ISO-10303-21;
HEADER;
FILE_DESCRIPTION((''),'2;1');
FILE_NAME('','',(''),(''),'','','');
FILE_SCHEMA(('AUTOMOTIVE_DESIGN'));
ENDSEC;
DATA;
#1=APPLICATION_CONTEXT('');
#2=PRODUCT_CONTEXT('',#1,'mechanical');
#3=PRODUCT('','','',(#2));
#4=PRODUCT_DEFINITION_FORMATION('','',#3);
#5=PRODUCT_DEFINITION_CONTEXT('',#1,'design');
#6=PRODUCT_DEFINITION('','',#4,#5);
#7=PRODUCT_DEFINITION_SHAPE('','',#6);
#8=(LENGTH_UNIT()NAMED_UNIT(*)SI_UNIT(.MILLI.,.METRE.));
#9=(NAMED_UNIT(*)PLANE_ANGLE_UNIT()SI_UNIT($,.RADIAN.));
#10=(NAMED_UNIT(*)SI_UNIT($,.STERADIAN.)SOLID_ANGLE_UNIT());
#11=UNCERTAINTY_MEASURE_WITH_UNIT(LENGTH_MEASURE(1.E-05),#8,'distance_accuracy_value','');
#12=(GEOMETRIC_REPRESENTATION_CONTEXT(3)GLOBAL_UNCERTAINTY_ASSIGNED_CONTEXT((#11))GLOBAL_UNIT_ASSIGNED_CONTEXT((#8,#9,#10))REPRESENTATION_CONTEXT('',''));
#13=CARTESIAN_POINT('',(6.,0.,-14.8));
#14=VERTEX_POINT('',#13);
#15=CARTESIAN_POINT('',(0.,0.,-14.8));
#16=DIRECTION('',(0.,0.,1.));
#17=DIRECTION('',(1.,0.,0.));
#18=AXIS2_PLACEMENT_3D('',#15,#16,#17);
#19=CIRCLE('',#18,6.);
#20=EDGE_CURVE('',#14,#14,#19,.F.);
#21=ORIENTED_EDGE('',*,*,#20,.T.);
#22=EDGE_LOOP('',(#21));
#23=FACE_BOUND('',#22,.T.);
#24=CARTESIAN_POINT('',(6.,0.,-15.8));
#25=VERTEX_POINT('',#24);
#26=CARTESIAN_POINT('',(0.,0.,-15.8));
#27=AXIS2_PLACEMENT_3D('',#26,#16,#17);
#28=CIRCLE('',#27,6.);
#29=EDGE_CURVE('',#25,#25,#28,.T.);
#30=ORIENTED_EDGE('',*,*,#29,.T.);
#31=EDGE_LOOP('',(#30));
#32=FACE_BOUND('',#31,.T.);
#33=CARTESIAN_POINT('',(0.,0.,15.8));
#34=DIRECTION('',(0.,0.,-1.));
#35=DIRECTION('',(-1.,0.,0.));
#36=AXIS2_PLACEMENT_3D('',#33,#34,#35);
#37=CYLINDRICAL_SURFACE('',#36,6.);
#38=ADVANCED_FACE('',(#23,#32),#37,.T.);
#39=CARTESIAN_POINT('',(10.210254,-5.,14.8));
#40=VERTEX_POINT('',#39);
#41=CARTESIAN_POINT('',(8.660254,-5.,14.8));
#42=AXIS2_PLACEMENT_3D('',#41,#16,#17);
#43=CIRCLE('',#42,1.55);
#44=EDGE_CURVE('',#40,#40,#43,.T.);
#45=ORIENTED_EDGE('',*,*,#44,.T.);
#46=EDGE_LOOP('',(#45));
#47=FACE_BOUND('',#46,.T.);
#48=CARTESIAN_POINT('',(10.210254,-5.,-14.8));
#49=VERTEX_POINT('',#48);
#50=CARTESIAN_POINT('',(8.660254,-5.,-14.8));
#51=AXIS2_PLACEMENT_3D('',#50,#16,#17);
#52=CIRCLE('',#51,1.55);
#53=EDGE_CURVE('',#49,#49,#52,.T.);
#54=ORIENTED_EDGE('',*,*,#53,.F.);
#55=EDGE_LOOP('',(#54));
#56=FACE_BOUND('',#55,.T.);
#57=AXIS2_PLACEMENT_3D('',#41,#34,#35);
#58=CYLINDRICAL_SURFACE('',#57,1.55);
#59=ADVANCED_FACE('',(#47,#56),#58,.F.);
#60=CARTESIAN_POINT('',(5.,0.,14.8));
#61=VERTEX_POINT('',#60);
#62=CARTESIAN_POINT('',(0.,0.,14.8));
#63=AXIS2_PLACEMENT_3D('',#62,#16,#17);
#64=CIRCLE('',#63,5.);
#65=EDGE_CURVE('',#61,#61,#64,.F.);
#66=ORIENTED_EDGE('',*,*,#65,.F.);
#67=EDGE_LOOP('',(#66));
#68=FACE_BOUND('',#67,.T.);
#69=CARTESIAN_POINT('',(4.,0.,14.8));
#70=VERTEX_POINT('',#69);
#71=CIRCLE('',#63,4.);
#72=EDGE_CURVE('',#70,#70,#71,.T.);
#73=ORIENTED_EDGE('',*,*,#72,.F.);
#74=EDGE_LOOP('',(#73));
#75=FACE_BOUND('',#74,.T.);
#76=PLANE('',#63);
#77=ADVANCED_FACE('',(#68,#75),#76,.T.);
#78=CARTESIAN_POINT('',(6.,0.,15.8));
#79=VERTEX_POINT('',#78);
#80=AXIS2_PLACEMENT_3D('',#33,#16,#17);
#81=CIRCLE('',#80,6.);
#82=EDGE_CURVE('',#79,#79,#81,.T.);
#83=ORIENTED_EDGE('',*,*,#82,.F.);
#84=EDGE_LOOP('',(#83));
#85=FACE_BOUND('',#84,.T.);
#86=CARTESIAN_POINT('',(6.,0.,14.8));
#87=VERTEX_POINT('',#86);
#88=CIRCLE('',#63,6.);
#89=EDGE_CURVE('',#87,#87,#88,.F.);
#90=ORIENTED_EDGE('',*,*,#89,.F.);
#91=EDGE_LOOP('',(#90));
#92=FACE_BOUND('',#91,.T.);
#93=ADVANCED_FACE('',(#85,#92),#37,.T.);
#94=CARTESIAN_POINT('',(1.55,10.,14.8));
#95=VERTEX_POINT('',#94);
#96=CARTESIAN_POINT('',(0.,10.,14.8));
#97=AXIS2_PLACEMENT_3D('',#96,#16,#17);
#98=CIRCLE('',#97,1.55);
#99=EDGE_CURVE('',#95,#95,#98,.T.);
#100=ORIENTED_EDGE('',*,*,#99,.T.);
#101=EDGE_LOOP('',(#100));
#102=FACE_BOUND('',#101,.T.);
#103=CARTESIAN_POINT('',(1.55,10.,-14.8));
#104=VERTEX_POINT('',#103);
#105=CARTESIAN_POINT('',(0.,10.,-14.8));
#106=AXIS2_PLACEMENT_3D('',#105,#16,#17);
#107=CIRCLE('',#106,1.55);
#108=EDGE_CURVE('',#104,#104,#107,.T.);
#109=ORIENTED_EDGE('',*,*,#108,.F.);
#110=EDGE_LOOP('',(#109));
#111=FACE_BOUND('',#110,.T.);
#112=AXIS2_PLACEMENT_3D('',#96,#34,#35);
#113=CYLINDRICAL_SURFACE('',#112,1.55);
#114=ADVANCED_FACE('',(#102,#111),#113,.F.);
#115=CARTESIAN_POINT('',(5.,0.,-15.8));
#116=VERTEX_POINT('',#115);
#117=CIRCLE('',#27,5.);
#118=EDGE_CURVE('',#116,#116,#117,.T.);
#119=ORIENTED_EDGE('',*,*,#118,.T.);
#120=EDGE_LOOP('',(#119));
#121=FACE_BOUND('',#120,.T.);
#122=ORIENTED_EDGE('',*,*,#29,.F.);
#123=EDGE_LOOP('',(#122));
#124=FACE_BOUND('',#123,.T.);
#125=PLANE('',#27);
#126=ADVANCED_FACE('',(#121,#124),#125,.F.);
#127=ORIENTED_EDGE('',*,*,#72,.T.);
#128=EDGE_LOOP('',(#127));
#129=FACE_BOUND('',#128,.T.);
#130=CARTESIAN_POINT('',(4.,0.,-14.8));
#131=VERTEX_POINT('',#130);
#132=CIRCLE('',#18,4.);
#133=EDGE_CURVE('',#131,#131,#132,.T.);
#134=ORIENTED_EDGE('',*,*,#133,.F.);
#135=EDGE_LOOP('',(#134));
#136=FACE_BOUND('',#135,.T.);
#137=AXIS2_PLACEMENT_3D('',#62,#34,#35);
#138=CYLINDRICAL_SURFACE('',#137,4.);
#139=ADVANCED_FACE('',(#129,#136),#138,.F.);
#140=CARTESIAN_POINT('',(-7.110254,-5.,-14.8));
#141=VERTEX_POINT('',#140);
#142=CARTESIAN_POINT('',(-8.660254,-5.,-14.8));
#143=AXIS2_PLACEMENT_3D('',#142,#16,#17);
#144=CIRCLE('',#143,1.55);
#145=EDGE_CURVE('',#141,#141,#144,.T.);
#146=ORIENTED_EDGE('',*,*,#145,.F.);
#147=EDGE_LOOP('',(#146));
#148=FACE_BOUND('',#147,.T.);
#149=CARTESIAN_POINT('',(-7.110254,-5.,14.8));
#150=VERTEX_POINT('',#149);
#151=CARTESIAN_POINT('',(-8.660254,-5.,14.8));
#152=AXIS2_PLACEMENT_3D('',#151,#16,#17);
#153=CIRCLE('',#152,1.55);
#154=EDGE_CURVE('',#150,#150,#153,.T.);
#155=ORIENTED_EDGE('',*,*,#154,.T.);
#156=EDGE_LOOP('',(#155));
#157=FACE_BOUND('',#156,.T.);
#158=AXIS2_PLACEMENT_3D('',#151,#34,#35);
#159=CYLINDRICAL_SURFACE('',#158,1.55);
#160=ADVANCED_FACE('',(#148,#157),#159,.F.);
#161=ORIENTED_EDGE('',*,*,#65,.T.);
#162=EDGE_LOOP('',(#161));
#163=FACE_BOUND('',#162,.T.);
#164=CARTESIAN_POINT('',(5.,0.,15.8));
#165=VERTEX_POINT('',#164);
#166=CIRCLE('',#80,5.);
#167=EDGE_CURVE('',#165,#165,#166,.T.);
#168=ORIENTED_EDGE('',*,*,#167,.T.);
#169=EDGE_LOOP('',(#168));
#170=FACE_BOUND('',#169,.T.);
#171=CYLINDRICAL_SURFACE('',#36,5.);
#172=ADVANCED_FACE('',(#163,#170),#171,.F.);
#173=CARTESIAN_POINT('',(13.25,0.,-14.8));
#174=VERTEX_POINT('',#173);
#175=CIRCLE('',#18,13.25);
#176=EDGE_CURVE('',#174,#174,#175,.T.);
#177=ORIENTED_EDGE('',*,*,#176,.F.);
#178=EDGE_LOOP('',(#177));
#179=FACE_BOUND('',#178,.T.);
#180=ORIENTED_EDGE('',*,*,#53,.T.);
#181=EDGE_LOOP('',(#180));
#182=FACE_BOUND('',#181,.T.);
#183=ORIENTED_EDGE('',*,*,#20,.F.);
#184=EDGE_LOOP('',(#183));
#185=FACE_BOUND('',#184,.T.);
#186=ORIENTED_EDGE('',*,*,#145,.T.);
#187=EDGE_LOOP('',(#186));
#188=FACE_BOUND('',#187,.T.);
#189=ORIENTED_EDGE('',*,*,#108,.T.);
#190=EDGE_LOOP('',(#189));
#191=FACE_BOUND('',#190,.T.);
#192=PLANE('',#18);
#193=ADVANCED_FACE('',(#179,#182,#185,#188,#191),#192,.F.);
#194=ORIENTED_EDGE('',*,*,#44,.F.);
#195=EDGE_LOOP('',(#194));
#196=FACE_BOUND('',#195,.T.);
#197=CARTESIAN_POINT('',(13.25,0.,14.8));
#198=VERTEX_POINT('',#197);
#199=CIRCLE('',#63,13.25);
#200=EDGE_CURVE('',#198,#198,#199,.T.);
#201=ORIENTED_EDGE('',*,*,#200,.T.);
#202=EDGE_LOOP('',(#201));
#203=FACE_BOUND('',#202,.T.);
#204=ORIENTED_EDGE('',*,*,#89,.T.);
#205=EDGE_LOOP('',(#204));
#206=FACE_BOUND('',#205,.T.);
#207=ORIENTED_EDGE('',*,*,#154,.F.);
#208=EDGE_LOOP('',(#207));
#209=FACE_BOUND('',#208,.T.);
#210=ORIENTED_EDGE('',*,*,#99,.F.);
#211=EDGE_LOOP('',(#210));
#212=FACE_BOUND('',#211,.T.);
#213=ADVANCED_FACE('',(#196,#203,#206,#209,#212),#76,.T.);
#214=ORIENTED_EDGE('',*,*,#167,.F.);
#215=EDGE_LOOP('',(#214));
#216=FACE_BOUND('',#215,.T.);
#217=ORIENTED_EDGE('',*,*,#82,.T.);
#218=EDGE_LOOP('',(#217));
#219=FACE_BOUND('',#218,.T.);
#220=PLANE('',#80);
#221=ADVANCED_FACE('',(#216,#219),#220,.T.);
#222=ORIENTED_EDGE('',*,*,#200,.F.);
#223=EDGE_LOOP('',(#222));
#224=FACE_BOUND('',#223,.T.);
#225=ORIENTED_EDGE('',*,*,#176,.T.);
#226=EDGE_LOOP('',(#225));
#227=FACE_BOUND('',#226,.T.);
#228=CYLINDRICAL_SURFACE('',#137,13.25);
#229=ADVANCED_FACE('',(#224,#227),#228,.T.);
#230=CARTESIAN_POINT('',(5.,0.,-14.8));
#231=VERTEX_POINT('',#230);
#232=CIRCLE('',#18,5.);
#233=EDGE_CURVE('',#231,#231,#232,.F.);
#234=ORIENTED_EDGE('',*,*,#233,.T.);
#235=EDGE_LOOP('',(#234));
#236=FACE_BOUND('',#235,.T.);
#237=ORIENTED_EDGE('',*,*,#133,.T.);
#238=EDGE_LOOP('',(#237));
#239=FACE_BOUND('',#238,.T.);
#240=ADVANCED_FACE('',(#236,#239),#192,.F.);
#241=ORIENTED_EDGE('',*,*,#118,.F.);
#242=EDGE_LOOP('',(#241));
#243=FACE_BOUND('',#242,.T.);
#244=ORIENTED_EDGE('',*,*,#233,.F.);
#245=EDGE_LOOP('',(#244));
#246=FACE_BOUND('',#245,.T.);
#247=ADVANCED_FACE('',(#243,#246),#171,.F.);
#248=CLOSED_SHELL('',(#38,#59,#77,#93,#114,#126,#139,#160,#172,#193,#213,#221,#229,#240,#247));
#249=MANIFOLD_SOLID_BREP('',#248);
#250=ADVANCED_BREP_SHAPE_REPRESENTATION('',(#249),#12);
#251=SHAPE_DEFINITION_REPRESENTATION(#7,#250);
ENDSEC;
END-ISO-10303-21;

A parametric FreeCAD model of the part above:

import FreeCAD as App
import Part
import Sketcher

V = App.Vector
Q = App.Units.Quantity

doc = App.newDocument("Part")
body = doc.addObject("PartDesign::Body", "Body")

sketch1 = doc.addObject("Sketcher::SketchObject", "Sketch")
body.addObject(sketch1)
sketch1.AttachmentSupport = (doc.XY_Plane, [""])
sketch1.MapMode = "FlatFace"
sketch1.addGeometry([
    Part.Circle(V(0, 0, 0), V(0, 0, 1), 13.25),
    Part.Circle(V(-8.660254, -5, 0), V(0, 0, 1), 1.55),
    Part.Circle(V(8.660254, -5, 0), V(0, 0, 1), 1.55),
    Part.Circle(V(0, 10, 0), V(0, 0, 1), 1.55),
    Part.Circle(V(0, 0, 0), V(0, 0, 1), 4),
], False)
sketch1.addConstraint([
    Sketcher.Constraint("Coincident", 0, 3, -1, 1),
    Sketcher.Constraint("Coincident", 4, 3, -1, 1),
    Sketcher.Constraint("Equal", 1, 2),
    Sketcher.Constraint("Equal", 2, 3),
    Sketcher.Constraint("Symmetric", 1, 3, 2, 3, -2),
    Sketcher.Constraint("PointOnObject", 3, 3, -2),
    Sketcher.Constraint("Diameter", 4, Q("8 mm")),
    Sketcher.Constraint("Diameter", 0, Q("26.5 mm")),
    Sketcher.Constraint("Diameter", 1, Q("3.1 mm")),
    Sketcher.Constraint("DistanceY", 1, 3, -1, 1, Q("5 mm")),
    Sketcher.Constraint("DistanceY", -1, 1, 3, 3, Q("10 mm")),
    Sketcher.Constraint("DistanceX", 1, 3, 2, 3, Q("17.320508 mm")),
])
pad1 = doc.addObject("PartDesign::Pad", "Pad")
body.addObject(pad1)
pad1.Profile = sketch1
pad1.Length = 29.6
pad1.Midplane = True

sketch2 = doc.addObject("Sketcher::SketchObject", "Sketch001")
body.addObject(sketch2)
sketch2.AttachmentSupport = (doc.XY_Plane, [""])
sketch2.MapMode = "FlatFace"
sketch2.addGeometry([
    Part.Circle(V(0, 0, 0), V(0, 0, 1), 6),
    Part.Circle(V(0, 0, 0), V(0, 0, 1), 5),
], False)
sketch2.addConstraint([
    Sketcher.Constraint("Coincident", 0, 3, -1, 1),
    Sketcher.Constraint("Coincident", 1, 3, -1, 1),
    Sketcher.Constraint("Diameter", 0, Q("12 mm")),
    Sketcher.Constraint("Diameter", 1, Q("10 mm")),
])
pad2 = doc.addObject("PartDesign::Pad", "Pad001")
body.addObject(pad2)
pad2.Profile = sketch2
pad2.Length = 31.6
pad2.Midplane = True

doc.recompute()
